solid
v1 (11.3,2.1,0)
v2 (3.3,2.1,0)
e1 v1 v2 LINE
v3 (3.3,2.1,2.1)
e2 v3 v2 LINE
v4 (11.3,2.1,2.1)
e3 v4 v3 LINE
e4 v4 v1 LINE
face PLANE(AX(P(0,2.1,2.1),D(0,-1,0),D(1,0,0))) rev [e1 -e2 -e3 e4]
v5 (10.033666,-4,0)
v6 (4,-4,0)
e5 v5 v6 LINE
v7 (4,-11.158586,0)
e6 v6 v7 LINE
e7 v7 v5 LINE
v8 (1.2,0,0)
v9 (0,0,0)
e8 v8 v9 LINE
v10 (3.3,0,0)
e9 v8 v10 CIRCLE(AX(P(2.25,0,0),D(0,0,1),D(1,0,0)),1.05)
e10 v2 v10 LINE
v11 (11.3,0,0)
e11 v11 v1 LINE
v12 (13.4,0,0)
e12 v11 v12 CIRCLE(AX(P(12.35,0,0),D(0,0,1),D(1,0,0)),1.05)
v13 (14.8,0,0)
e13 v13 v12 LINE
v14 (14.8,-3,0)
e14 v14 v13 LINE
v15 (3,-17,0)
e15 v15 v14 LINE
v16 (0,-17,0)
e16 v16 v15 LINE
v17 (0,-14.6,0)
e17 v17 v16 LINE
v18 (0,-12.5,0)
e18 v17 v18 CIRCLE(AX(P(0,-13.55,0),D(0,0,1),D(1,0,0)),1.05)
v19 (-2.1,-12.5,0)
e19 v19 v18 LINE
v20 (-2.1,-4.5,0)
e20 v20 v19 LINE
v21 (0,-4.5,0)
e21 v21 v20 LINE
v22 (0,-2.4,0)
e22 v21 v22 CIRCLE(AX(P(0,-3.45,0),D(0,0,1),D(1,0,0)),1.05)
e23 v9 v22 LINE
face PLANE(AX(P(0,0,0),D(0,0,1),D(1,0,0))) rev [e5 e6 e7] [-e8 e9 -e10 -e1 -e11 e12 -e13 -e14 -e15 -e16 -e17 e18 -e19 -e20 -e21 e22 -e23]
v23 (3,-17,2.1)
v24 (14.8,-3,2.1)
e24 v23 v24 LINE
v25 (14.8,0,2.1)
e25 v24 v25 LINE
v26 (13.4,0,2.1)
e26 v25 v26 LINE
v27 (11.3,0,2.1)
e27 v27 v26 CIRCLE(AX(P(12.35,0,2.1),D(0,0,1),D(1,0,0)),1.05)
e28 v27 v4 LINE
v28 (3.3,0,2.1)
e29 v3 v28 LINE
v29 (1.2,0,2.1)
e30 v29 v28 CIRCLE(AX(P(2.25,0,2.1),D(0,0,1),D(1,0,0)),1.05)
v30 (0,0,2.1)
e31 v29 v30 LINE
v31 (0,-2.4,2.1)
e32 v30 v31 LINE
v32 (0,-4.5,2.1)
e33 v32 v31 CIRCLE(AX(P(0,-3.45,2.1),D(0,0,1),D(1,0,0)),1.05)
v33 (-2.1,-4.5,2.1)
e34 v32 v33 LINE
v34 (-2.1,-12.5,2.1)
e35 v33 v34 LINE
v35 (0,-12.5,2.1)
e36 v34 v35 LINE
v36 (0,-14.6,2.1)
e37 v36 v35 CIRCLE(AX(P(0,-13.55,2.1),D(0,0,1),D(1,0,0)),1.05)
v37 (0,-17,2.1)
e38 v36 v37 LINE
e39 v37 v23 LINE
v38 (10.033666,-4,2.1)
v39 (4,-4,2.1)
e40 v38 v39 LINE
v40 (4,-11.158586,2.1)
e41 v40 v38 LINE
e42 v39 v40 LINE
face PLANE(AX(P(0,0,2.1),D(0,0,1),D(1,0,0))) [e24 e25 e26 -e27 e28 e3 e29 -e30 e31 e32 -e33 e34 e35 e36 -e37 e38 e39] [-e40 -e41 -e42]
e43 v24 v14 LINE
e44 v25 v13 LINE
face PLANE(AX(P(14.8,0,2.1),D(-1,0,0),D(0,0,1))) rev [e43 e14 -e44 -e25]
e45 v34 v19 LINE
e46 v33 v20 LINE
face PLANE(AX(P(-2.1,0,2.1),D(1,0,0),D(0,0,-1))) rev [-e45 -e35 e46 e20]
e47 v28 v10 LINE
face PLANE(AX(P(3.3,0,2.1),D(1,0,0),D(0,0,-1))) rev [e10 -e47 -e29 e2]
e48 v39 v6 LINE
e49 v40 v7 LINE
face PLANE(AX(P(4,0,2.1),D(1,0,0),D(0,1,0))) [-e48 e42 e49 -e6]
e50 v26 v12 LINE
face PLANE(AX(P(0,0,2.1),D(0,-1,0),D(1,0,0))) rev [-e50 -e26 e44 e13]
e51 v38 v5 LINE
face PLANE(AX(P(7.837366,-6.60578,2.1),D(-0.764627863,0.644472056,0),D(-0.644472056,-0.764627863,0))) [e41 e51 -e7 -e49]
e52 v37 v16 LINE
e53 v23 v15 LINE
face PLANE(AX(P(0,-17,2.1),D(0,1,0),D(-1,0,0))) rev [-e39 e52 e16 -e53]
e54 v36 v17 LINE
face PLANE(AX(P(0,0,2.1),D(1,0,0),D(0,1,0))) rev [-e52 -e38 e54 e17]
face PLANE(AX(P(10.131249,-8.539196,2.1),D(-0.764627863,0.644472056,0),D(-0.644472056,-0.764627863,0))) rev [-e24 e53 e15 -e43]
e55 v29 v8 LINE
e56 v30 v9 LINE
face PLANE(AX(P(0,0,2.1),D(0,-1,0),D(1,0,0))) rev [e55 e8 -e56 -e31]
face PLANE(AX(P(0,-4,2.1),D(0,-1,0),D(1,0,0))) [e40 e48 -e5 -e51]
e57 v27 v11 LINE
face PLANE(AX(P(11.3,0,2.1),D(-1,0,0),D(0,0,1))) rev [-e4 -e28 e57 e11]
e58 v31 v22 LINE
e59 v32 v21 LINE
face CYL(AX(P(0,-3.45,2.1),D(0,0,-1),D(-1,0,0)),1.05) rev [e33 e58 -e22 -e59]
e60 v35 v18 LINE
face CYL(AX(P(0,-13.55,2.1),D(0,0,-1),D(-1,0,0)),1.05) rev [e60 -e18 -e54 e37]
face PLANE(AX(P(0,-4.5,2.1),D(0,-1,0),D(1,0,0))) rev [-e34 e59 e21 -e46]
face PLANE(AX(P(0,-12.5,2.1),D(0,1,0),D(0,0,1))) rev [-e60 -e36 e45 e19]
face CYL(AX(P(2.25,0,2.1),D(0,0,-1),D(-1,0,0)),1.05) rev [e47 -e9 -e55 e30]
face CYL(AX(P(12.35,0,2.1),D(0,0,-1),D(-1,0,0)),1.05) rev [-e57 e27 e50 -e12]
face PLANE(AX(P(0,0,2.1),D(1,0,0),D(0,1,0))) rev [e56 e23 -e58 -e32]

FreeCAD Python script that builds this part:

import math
import FreeCAD as App
import Part
import Sketcher
from FreeCAD import Vector
Q = App.Units.Quantity


def add_polygon(sketch, points):
    """Adds a closed chain of lines whose ends are joined by coincident constraints."""
    first, n = sketch.GeometryCount, len(points)
    for a, b in zip(points, points[1:] + points[:1]):
        sketch.addGeometry(Part.LineSegment(App.Vector(*a, 0), App.Vector(*b, 0)), False)
    for i in range(n):
        sketch.addConstraint(Sketcher.Constraint("Coincident", first + i, 2, first + (i + 1) % n, 1))

doc = App.newDocument("Part")
body = doc.addObject("PartDesign::Body", "Body")

# Sketch on XY plane
sketch1 = body.newObject("Sketcher::SketchObject", "Sketch")
sketch1.AttachmentSupport = (doc.getObject("XY_Plane"), [""])
sketch1.MapMode = "FlatFace"
sketch1.addGeometry(Part.LineSegment(Vector(1.2, 0, 0), Vector(0, 0, 0)), False)  # 0
sketch1.addGeometry(Part.LineSegment(Vector(0, 0, 0), Vector(0, -2.4, 0)), False)  # 1
sketch1.addGeometry(Part.ArcOfCircle(Part.Circle(Vector(0, -3.5, 0), Vector(0, 0, 1), 1.1), math.radians(0), math.radians(90)), False)  # 2
sketch1.addGeometry(Part.ArcOfCircle(Part.Circle(Vector(0, -3.4, 0), Vector(0, 0, 1), 1.1), math.radians(-90), math.radians(0)), False)  # 3
sketch1.addGeometry(Part.LineSegment(Vector(0, -4.5, 0), Vector(-2.1, -4.5, 0)), False)  # 4
sketch1.addGeometry(Part.LineSegment(Vector(-2.1, -4.5, 0), Vector(-2.1, -12.5, 0)), False)  # 5
sketch1.addGeometry(Part.LineSegment(Vector(-2.1, -12.5, 0), Vector(0, -12.5, 0)), False)  # 6
sketch1.addGeometry(Part.ArcOfCircle(Part.Circle(Vector(0, -13.6, 0), Vector(0, 0, 1), 1.1), math.radians(0), math.radians(90)), False)  # 7
sketch1.addGeometry(Part.ArcOfCircle(Part.Circle(Vector(0, -13.5, 0), Vector(0, 0, 1), 1.1), math.radians(-90), math.radians(0)), False)  # 8
sketch1.addGeometry(Part.LineSegment(Vector(0, -14.6, 0), Vector(0, -17, 0)), False)  # 9
sketch1.addGeometry(Part.LineSegment(Vector(0, -17, 0), Vector(3, -17, 0)), False)  # 10
sketch1.addGeometry(Part.LineSegment(Vector(3, -17, 0), Vector(14.8, -3, 0)), False)  # 11
sketch1.addGeometry(Part.LineSegment(Vector(14.8, -3, 0), Vector(14.8, 0, 0)), False)  # 12
sketch1.addGeometry(Part.LineSegment(Vector(14.8, 0, 0), Vector(13.4, 0, 0)), False)  # 13
sketch1.addGeometry(Part.ArcOfCircle(Part.Circle(Vector(12.3, 0, 0), Vector(0, 0, 1), 1.1), math.radians(180), math.radians(360)), False)  # 14
sketch1.addGeometry(Part.LineSegment(Vector(11.3, 0, 0), Vector(11.3, 2.1, 0)), False)  # 15
sketch1.addGeometry(Part.LineSegment(Vector(11.3, 2.1, 0), Vector(3.3, 2.1, 0)), False)  # 16
sketch1.addGeometry(Part.LineSegment(Vector(3.3, 2.1, 0), Vector(3.3, 0, 0)), False)  # 17
sketch1.addGeometry(Part.ArcOfCircle(Part.Circle(Vector(2.2, 0, 0), Vector(0, 0, 1), 1.1), math.radians(180), math.radians(360)), False)  # 18
add_polygon(sketch1, [(10, -4), (4, -11.2), (4, -4)])  # lines 19-21
sketch1.addConstraint([
    Sketcher.Constraint("Coincident", 0, 2, 1, 1),
    Sketcher.Constraint("Coincident", 1, 2, 2, 2),
    Sketcher.Constraint("Tangent", 2, 1, 3, 2),
    Sketcher.Constraint("Tangent", 3, 1, 4, 1),
    Sketcher.Constraint("Coincident", 4, 2, 5, 1),
    Sketcher.Constraint("Coincident", 5, 2, 6, 1),
    Sketcher.Constraint("Tangent", 6, 2, 7, 2),
    Sketcher.Constraint("Tangent", 7, 1, 8, 2),
    Sketcher.Constraint("Coincident", 8, 1, 9, 1),
    Sketcher.Constraint("Coincident", 9, 2, 10, 1),
    Sketcher.Constraint("Coincident", 10, 2, 11, 1),
    Sketcher.Constraint("Coincident", 11, 2, 12, 1),
    Sketcher.Constraint("Coincident", 12, 2, 13, 1),
    Sketcher.Constraint("Coincident", 13, 2, 14, 2),
    Sketcher.Constraint("Tangent", 14, 1, 15, 1),
    Sketcher.Constraint("Coincident", 15, 2, 16, 1),
    Sketcher.Constraint("Coincident", 16, 2, 17, 1),
    Sketcher.Constraint("Tangent", 17, 2, 18, 2),
    Sketcher.Constraint("Coincident", 18, 1, 0, 1),
    Sketcher.Constraint("Horizontal", 0),
    Sketcher.Constraint("Vertical", 1),
    Sketcher.Constraint("Horizontal", 4),
    Sketcher.Constraint("Vertical", 5),
    Sketcher.Constraint("Horizontal", 6),
    Sketcher.Constraint("Vertical", 9),
    Sketcher.Constraint("Horizontal", 10),
    Sketcher.Constraint("Vertical", 12),
    Sketcher.Constraint("Horizontal", 13),
    Sketcher.Constraint("Vertical", 15),
    Sketcher.Constraint("Horizontal", 16),
    Sketcher.Constraint("Vertical", 17),
    Sketcher.Constraint("Vertical", 20),
    Sketcher.Constraint("Horizontal", 21),
    Sketcher.Constraint("Coincident", 0, 2, -1, 1),
    Sketcher.Constraint("Equal", 2, 3),
    Sketcher.Constraint("Equal", 3, 7),
    Sketcher.Constraint("Equal", 7, 8),
    Sketcher.Constraint("Equal", 8, 14),
    Sketcher.Constraint("Equal", 14, 18),
    Sketcher.Constraint("PointOnObject", 2, 3, -2),
    Sketcher.Constraint("PointOnObject", 7, 3, -2),
    Sketcher.Constraint("PointOnObject", 14, 3, -1),
    Sketcher.Constraint("PointOnObject", 18, 3, -1),
    Sketcher.Constraint("PointOnObject", 8, 1, -2),
    Sketcher.Constraint("PointOnObject", 12, 2, -1),
    Sketcher.Constraint("Parallel", 11, 19),
    Sketcher.Constraint("Horizontal", 3, 3, 2, 1),
    Sketcher.Constraint("Horizontal", 8, 3, 7, 1),
    Sketcher.Constraint("Equal", 16, 5),
    Sketcher.Constraint("Equal", 1, 9),
    Sketcher.Constraint("Equal", 10, 12),
    Sketcher.Constraint("Equal", 6, 15),
    Sketcher.Constraint("DistanceX", 10, 1, 10, 2, Q("3 mm")),
    Sketcher.Constraint("DistanceX", 16, 2, 16, 1, Q("8 mm")),
    Sketcher.Constraint("Radius", 2, Q("1.05 mm")),
    Sketcher.Constraint("DistanceX", 0, 2, 0, 1, Q("1.2 mm")),
    Sketcher.Constraint("DistanceX", 4, 2, 4, 1, Q("2.1 mm")),
    Sketcher.Constraint("DistanceX", 13, 2, 13, 1, Q("1.4 mm")),
    Sketcher.Constraint("DistanceY", 1, 2, 1, 1, Q("2.4 mm")),
    Sketcher.Constraint("DistanceX", -1, 1, 19, 2, Q("4 mm")),
    Sketcher.Constraint("DistanceY", 20, 2, -1, 1, Q("4 mm")),
    Sketcher.Constraint("DistanceX", 21, 1, 21, 2, Q("6.033666 mm")),
])
pad1 = body.newObject("PartDesign::Pad", "Pad")
pad1.Profile = sketch1
pad1.Length = 2.1

doc.recompute()
